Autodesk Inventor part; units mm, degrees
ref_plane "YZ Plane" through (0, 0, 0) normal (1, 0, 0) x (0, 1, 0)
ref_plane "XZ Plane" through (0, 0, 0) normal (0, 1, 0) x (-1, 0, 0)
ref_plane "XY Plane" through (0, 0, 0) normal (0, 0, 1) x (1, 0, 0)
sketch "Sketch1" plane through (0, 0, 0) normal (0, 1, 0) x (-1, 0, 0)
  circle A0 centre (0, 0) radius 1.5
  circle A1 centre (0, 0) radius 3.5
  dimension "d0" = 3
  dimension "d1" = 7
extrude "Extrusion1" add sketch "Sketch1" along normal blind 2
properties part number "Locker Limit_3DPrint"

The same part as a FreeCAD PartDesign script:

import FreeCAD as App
import Part
import Sketcher
from FreeCAD import Vector
Q = App.Units.Quantity

doc = App.newDocument("Part")
body = doc.addObject("PartDesign::Body", "Body")

# Sketch on XZ plane
sketch1 = doc.addObject("Sketcher::SketchObject", "Sketch")
body.addObject(sketch1)
sketch1.AttachmentSupport = (doc.XZ_Plane, [""])
sketch1.MapMode = "FlatFace"
sketch1.addGeometry([
    Part.Circle(Vector(0, 0, 0), Vector(0, 0, 1), 3.5),
    Part.Circle(Vector(0, 0, 0), Vector(0, 0, 1), 1.5),
], False)
sketch1.addConstraint([
    Sketcher.Constraint("Coincident", 0, 3, -1, 1),
    Sketcher.Constraint("Coincident", 1, 3, -1, 1),
    Sketcher.Constraint("Diameter", 0, Q("7 mm")),
    Sketcher.Constraint("Diameter", 1, Q("3 mm")),
])
pad1 = doc.addObject("PartDesign::Pad", "Pad")
body.addObject(pad1)
pad1.Profile = sketch1
pad1.Length = 2
pad1.Reversed = True

doc.recompute()
